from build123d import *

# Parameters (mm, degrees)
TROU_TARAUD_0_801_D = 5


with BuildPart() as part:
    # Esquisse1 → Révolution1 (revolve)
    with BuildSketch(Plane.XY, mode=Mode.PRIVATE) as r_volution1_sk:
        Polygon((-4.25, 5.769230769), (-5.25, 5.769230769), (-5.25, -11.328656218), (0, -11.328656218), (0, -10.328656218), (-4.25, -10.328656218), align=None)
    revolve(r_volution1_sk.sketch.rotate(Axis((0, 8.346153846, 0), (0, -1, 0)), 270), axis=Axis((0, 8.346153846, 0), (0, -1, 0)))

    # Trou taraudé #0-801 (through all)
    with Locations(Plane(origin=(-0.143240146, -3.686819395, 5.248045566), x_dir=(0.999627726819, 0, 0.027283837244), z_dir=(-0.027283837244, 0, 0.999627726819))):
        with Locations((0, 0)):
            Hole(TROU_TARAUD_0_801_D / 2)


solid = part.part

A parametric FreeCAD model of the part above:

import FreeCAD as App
import Part
import Sketcher

V = App.Vector

doc = App.newDocument("Part")
body = doc.addObject("PartDesign::Body", "Body")

# Sketch on XY plane
sketch1 = body.newObject("Sketcher::SketchObject", "Sketch")
sketch1.AttachmentSupport = (doc.getObject("XY_Plane"), [""])
sketch1.MapMode = "FlatFace"
sketch1.addGeometry([
    Part.LineSegment(V(-4.2, 5.8, 0), V(-5.2, 5.8, 0)),  # 0
    Part.LineSegment(V(-5.2, 5.8, 0), V(-5.2, -11.3, 0)),  # 1
    Part.LineSegment(V(-5.2, -11.3, 0), V(0, -11.3, 0)),  # 2
    Part.LineSegment(V(0, -11.3, 0), V(0, -10.3, 0)),  # 3
    Part.LineSegment(V(0, -10.3, 0), V(-4.2, -10.3, 0)),  # 4
    Part.LineSegment(V(-4.2, -10.3, 0), V(-4.2, 5.8, 0)),  # 5
], False)
sketch1.addConstraint([
    Sketcher.Constraint("Coincident", 0, 2, 1, 1),
    Sketcher.Constraint("Coincident", 1, 2, 2, 1),
    Sketcher.Constraint("Coincident", 2, 2, 3, 1),
    Sketcher.Constraint("Coincident", 3, 2, 4, 1),
    Sketcher.Constraint("Coincident", 4, 2, 5, 1),
    Sketcher.Constraint("Coincident", 5, 2, 0, 1),
    Sketcher.Constraint("Horizontal", 0),
    Sketcher.Constraint("Vertical", 1),
    Sketcher.Constraint("Horizontal", 2),
    Sketcher.Constraint("Vertical", 3),
    Sketcher.Constraint("Horizontal", 4),
    Sketcher.Constraint("Vertical", 5),
    Sketcher.Constraint("PointOnObject", 2, 2, -2),
    Sketcher.Constraint("Equal", 0, 3),
    Sketcher.Constraint("DistanceX", 0, 2, 0, 1, 1.0),
    Sketcher.Constraint("DistanceX", 2, 1, 2, 2, 5.25),
    Sketcher.Constraint("DistanceY", 1, 2, 1, 1, 17.097887),
    Sketcher.Constraint("DistanceY", -1, 1, 0, 2, 5.769231),
])
revolution = body.newObject("PartDesign::Revolution", "Revolution")
revolution.Profile = sketch1
revolution.ReferenceAxis = (sketch1, ["V_Axis"])
revolution.Angle = 360

# Sketch on an angled plane
sketch2 = body.newObject("Sketcher::SketchObject", "Sketch001")
sketch2.Placement = App.Placement(V(-0.14324, 0, 5.248046), App.Rotation(V(0.999627727, 0, 0.027283837), V(0, 1, 0), V(-0.027283837, 0, 0.999627727), "ZXY"))
sketch2.addGeometry(Part.Circle(V(0, -3.7, 0), V(0, 0, 1), 2.5), False)
sketch2.addConstraint([
    Sketcher.Constraint("PointOnObject", 0, 3, -2),
    Sketcher.Constraint("Diameter", 0, 5.0),
    Sketcher.Constraint("DistanceY", 0, 3, -1, 1, 3.686819),
])
doc.recompute()
hole = body.newObject("PartDesign::Hole", "Hole")
hole.Profile = sketch2
hole.ThreadType = "None"
hole.Diameter = 5
hole.DepthType = "ThroughAll"

doc.recompute()
